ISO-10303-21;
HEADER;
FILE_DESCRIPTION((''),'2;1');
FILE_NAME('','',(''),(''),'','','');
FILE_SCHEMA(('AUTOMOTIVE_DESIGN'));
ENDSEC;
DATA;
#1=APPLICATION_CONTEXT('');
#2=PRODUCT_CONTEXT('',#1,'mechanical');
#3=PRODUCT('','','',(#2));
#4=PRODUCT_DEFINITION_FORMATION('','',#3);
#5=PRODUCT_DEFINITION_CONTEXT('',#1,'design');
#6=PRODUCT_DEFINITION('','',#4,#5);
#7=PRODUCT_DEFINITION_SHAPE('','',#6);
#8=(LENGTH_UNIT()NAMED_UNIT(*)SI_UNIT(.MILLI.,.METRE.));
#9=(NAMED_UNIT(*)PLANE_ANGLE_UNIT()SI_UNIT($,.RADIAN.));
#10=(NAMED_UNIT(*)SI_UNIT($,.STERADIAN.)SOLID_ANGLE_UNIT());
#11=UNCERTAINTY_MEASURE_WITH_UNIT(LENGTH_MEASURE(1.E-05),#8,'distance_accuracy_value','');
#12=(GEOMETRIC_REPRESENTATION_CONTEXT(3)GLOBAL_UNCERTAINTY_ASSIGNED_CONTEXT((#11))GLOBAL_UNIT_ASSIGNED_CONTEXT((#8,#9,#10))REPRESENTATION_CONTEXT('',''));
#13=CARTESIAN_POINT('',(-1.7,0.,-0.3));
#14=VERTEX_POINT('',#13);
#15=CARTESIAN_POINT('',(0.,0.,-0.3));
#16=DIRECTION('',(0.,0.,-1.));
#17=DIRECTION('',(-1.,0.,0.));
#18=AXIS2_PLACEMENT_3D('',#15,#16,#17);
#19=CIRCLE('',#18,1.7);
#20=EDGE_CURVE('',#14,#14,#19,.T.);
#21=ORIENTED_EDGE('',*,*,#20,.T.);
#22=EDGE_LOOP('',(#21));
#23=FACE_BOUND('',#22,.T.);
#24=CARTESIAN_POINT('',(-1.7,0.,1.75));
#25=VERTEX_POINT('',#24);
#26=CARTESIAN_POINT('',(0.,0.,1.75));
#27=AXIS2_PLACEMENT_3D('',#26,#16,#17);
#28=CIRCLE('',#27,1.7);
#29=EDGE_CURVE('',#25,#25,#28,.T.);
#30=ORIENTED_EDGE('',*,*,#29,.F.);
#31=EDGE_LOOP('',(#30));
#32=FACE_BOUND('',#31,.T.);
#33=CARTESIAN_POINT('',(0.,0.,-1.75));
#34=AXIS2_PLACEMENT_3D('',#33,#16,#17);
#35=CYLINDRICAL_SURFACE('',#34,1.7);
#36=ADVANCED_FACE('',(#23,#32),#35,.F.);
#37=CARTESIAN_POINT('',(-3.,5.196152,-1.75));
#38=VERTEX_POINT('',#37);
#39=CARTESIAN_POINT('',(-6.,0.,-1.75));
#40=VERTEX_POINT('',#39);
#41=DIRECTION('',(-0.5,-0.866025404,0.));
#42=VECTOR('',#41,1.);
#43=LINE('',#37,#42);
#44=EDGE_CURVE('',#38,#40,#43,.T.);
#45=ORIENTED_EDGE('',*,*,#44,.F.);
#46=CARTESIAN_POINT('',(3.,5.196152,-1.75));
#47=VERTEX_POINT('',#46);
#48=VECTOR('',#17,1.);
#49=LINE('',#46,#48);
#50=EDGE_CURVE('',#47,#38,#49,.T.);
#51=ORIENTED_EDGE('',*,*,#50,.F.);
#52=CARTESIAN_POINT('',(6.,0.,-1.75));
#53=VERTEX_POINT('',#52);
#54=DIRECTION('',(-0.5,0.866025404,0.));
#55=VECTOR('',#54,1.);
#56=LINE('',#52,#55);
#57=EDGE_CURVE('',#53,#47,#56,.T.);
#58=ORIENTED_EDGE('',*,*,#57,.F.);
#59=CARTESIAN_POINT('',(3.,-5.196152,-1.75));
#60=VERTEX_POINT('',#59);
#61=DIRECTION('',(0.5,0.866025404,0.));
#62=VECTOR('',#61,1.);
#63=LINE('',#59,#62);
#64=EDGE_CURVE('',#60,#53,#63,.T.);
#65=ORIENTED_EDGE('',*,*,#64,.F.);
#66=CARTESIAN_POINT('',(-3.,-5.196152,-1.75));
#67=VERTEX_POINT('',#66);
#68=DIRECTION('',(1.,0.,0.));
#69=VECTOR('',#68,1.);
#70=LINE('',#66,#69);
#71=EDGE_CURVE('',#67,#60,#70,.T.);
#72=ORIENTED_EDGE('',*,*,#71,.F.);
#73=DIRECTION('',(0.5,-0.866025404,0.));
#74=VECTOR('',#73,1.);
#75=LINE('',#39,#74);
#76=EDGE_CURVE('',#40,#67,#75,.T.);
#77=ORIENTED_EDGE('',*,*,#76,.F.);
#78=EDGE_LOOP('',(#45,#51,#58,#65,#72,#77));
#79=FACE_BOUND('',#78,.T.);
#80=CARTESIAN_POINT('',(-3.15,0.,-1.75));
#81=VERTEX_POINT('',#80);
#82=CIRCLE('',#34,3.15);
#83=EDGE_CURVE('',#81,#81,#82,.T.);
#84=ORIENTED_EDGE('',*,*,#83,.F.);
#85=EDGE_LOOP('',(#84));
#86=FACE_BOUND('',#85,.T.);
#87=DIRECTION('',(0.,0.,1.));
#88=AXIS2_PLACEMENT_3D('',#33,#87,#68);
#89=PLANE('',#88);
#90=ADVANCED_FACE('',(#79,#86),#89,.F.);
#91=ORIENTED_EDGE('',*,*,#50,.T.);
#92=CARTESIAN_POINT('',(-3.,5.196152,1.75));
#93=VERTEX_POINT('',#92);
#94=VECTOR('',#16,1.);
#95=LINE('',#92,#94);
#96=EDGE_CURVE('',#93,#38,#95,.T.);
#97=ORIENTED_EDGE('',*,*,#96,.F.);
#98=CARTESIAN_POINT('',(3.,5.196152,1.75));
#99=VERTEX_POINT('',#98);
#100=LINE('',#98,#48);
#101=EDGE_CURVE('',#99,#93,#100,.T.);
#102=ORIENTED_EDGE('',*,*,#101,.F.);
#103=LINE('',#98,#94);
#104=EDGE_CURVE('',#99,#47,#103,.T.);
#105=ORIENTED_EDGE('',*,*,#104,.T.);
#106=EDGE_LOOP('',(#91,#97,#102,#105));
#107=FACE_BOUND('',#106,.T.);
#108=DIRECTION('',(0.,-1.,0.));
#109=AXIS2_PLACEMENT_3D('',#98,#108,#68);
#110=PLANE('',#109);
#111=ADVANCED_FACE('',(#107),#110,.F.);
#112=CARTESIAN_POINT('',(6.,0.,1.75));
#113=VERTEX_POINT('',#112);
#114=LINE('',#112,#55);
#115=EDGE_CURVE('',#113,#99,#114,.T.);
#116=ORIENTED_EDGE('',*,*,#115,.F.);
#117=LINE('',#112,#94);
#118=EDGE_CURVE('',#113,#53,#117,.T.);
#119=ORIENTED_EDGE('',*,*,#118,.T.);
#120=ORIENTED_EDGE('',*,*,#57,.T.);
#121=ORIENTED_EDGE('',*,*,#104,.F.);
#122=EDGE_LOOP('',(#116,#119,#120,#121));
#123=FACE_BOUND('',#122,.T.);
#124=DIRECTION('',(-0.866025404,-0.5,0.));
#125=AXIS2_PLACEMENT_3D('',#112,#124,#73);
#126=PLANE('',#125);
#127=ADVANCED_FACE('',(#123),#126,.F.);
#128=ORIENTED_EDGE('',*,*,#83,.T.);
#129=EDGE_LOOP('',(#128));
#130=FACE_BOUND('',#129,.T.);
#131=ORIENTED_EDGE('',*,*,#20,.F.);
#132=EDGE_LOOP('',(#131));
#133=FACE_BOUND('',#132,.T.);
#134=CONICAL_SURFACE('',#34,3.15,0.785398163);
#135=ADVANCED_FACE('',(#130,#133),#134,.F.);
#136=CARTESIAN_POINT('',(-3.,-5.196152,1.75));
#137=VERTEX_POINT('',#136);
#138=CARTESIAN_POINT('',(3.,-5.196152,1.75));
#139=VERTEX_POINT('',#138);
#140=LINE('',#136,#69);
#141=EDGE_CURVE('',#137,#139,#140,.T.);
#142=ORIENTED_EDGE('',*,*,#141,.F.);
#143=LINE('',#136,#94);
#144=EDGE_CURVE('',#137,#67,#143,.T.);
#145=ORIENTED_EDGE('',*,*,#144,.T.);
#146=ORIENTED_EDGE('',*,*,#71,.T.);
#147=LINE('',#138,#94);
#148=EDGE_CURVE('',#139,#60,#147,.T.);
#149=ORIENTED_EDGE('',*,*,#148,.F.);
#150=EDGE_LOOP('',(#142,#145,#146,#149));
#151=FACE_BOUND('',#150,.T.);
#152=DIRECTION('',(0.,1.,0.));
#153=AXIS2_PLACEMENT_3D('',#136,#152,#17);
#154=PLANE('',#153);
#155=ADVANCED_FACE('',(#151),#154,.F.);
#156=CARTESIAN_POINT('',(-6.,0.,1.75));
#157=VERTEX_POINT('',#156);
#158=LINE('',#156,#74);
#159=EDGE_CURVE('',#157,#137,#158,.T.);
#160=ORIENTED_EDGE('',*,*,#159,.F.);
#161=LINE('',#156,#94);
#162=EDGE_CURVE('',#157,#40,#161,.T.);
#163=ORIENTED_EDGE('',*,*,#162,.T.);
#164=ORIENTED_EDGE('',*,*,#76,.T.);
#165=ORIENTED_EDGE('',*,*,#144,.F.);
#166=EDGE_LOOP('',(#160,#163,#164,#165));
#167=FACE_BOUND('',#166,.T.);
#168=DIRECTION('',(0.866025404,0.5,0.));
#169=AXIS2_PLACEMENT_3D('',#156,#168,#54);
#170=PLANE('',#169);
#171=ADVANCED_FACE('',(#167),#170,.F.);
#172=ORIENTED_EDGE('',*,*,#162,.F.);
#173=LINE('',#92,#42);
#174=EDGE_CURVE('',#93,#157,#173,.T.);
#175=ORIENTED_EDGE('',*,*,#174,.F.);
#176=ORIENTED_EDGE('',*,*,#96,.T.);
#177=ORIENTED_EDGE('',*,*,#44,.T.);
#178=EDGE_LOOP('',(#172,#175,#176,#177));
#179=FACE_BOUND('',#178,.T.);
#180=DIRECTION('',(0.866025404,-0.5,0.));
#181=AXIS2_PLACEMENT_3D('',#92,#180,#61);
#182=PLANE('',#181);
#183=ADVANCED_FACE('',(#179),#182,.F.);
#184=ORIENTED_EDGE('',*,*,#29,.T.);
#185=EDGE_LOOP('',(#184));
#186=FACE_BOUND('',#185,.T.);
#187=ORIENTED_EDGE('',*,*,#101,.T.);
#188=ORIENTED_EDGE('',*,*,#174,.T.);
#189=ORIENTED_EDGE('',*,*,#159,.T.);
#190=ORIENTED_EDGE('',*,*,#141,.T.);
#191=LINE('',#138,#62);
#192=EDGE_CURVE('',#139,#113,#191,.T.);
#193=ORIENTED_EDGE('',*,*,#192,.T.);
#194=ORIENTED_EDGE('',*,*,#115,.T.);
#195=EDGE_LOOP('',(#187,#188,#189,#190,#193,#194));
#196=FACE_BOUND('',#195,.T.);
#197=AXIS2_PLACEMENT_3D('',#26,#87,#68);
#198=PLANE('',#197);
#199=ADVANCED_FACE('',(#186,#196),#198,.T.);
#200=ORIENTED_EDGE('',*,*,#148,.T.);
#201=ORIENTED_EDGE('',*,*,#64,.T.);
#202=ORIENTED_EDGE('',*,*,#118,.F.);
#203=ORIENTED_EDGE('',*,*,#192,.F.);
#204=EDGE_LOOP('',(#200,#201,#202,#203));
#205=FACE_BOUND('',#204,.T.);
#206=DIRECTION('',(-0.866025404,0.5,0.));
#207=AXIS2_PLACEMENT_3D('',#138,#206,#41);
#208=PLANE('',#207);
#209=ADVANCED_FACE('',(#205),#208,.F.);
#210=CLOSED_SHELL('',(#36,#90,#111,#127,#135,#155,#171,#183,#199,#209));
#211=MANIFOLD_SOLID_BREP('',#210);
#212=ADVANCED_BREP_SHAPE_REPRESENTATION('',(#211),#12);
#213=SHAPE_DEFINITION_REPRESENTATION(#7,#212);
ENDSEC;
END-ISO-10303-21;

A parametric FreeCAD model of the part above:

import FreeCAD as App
import Part
import Sketcher
Q = App.Units.Quantity

doc = App.newDocument("Part")
body = doc.addObject("PartDesign::Body", "Body")

# Sketch on XY plane
sketch1 = body.newObject("Sketcher::SketchObject", "Sketch")
sketch1.AttachmentSupport = (doc.getObject("XY_Plane"), [""])
sketch1.MapMode = "FlatFace"
sketch1.addGeometry([
    Part.LineSegment(App.Vector(3, -5, 0), App.Vector(6, 0, 0)),  # 0
    Part.LineSegment(App.Vector(6, 0, 0), App.Vector(3, 5, 0)),  # 1
    Part.LineSegment(App.Vector(3, 5, 0), App.Vector(-3, 5, 0)),  # 2
    Part.LineSegment(App.Vector(-3, 5, 0), App.Vector(-6, 0, 0)),  # 3
    Part.LineSegment(App.Vector(-6, 0, 0), App.Vector(-3, -5, 0)),  # 4
    Part.LineSegment(App.Vector(-3, -5, 0), App.Vector(3, -5, 0)),  # 5
], False)
sketch1.addConstraint([
    Sketcher.Constraint("Coincident", 0, 2, 1, 1),
    Sketcher.Constraint("Coincident", 1, 2, 2, 1),
    Sketcher.Constraint("Coincident", 2, 2, 3, 1),
    Sketcher.Constraint("Coincident", 3, 2, 4, 1),
    Sketcher.Constraint("Coincident", 4, 2, 5, 1),
    Sketcher.Constraint("Coincident", 5, 2, 0, 1),
    Sketcher.Constraint("Horizontal", 2),
    Sketcher.Constraint("Horizontal", 5),
    Sketcher.Constraint("Symmetric", 0, 2, 3, 2, -1, 1),
    Sketcher.Constraint("Symmetric", 1, 2, 4, 2, -1, 1),
    Sketcher.Constraint("PointOnObject", 0, 2, -1),
    Sketcher.Constraint("Parallel", 0, 3),
    Sketcher.Constraint("Vertical", 2, 2, 4, 2),
    Sketcher.Constraint("DistanceX", 2, 2, 2, 1, Q("6 mm")),
    Sketcher.Constraint("Angle", 0, Q("60 deg")),
    Sketcher.Constraint("Distance", 0, Q("6 mm")),
])
pad1 = body.newObject("PartDesign::Pad", "Pad")
pad1.Profile = sketch1
pad1.Length = 3.5
pad1.Midplane = True

# Sketch on XY plane
sketch2 = body.newObject("Sketcher::SketchObject", "Sketch001")
sketch2.AttachmentSupport = (doc.getObject("XY_Plane"), [""])
sketch2.MapMode = "FlatFace"
sketch2.AttachmentOffset = App.Placement(App.Vector(0, 0, -1.75), App.Rotation())
sketch2.addGeometry(Part.Circle(App.Vector(0, 0, 0), App.Vector(0, 0, 1), 1.7), False)
sketch2.addConstraint([
    Sketcher.Constraint("Coincident", 0, 3, -1, 1),
    Sketcher.Constraint("Diameter", 0, Q("3.4 mm")),
])
doc.recompute()
hole = body.newObject("PartDesign::Hole", "Hole")
hole.Profile = sketch2
hole.ThreadType = "None"
hole.Diameter = 3.4
hole.DepthType = "Dimension"
hole.Depth = 3.5
hole.DrillPoint = "Angled"
hole.DrillPointAngle = 118
hole.HoleCutType = "Countersink"
hole.HoleCutDiameter = 6.3
hole.HoleCutCountersinkAngle = 90
hole.Reversed = True

doc.recompute()
